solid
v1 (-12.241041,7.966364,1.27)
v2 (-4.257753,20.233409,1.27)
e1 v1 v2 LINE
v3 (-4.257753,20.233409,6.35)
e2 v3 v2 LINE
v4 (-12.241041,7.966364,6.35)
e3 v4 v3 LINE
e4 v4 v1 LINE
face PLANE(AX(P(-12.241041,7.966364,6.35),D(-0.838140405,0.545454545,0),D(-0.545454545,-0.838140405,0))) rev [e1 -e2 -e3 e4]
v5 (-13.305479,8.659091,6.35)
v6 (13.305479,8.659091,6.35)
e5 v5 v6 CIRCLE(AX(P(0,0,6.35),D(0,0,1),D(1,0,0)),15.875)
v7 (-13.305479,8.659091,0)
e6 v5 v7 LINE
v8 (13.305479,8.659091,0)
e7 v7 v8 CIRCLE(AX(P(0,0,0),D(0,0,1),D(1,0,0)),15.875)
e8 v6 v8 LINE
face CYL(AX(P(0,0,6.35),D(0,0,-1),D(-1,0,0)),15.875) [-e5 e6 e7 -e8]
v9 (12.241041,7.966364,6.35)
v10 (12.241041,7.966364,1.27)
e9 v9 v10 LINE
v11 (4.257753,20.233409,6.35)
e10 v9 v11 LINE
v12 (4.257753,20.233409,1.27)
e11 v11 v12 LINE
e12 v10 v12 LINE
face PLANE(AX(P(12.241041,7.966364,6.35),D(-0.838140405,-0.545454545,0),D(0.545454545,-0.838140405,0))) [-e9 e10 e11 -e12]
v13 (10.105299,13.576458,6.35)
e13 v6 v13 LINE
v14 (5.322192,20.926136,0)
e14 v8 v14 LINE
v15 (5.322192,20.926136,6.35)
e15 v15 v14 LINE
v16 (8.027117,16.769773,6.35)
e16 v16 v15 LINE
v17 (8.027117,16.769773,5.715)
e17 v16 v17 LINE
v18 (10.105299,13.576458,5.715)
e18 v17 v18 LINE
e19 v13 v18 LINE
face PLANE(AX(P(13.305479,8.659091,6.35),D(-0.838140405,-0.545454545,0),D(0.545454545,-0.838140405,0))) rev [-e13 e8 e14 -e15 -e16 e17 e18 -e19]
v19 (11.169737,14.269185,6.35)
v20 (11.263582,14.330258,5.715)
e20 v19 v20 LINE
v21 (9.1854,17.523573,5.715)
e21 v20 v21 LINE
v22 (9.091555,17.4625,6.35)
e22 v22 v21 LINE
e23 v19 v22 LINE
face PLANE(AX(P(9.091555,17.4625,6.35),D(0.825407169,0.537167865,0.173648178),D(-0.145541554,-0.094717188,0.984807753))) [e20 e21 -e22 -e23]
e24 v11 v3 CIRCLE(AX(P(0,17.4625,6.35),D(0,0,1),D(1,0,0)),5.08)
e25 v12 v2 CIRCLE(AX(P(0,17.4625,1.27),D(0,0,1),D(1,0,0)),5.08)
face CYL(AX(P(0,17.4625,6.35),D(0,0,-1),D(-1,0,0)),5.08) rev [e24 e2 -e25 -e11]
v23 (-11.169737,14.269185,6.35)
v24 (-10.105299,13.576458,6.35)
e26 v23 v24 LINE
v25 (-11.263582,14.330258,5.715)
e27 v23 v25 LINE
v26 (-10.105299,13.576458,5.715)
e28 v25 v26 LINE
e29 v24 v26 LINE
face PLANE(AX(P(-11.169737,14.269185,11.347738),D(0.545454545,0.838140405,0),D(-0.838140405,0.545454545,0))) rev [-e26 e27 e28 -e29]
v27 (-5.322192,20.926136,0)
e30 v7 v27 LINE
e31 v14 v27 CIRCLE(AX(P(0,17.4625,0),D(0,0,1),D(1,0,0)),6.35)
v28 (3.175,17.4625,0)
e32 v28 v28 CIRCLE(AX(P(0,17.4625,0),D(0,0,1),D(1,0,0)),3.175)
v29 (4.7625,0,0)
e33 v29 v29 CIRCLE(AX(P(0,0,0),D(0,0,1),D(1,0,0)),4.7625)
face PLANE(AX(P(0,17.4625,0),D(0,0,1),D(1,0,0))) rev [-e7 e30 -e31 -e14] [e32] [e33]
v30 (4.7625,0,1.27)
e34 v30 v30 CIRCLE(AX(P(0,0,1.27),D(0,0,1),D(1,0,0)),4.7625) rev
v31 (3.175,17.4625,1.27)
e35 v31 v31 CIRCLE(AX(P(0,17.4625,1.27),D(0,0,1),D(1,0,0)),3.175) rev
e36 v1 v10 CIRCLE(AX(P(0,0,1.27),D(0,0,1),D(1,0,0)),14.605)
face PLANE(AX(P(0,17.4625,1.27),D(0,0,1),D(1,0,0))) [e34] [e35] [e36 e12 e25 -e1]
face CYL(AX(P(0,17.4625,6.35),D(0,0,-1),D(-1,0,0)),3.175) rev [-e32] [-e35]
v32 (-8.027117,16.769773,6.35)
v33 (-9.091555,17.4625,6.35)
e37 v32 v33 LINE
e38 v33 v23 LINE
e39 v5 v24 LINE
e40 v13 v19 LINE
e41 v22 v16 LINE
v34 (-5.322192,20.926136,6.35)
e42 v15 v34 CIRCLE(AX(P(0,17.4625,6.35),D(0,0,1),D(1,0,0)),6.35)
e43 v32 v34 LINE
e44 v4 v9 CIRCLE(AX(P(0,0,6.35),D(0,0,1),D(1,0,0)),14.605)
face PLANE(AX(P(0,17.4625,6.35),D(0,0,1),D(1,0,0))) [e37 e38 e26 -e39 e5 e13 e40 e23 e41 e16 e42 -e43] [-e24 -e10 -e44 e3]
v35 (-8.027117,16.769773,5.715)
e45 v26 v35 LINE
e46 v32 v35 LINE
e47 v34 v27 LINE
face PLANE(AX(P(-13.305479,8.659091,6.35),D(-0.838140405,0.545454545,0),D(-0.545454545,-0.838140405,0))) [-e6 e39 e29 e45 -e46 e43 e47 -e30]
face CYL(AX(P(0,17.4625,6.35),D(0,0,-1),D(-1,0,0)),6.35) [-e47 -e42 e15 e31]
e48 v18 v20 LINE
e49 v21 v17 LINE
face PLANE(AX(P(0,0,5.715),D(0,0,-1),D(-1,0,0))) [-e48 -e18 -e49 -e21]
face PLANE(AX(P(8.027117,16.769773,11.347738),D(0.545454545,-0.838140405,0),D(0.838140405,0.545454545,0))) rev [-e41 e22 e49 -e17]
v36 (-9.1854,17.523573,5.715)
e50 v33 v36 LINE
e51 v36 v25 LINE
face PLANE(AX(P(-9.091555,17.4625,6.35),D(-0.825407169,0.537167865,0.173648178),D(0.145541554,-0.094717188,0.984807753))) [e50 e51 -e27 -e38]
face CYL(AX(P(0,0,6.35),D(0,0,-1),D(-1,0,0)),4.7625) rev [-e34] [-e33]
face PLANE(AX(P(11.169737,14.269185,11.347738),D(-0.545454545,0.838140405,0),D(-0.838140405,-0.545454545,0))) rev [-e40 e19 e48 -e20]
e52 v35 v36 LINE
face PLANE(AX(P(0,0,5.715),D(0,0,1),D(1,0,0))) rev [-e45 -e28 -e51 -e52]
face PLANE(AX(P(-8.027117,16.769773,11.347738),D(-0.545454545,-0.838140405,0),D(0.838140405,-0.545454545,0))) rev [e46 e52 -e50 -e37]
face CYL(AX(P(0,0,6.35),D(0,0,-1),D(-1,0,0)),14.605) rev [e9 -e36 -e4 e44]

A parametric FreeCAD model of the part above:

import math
import FreeCAD as App
import Part
import Sketcher

V = App.Vector
Q = App.Units.Quantity


def faces_at(feature, points):
    """Names of the faces that lie closest to the given points."""
    faces = feature.Shape.Faces
    near = lambda p: min(range(len(faces)), key=lambda i: faces[i].distToShape(Part.Vertex(*p))[0])
    return sorted({f"Face{near(p) + 1}" for p in points})


def add_polygon(sketch, points):
    """Adds a closed chain of lines whose ends are joined by coincident constraints."""
    first, n = sketch.GeometryCount, len(points)
    for a, b in zip(points, points[1:] + points[:1]):
        sketch.addGeometry(Part.LineSegment(App.Vector(*a, 0), App.Vector(*b, 0)), False)
    for i in range(n):
        sketch.addConstraint(Sketcher.Constraint("Coincident", first + i, 2, first + (i + 1) % n, 1))

doc = App.newDocument("Part")
params = doc.addObject("Spreadsheet::Sheet", "Params")
for row, (alias, value) in enumerate([
    ("sketch1_radius", "0.25 in"),
    ("sketch1_radius2", "0.625 in"),
    ("pad1_length", "0.25 in"),
    ("thickness_wall", "0.05 in"),
    ("sketch2_diameter", "0.25 in"),
    ("sketch2_diameter2", "0.375 in"),
    ("sketch3_length", "0.05 in"),
    ("sketch3_length2", "0.15 in"),
    ("pad2_length", "0.025 in"),
    ("draft_angle", "10 deg"),
], start=1):
    params.set(f"A{row}", alias)
    params.set(f"B{row}", "=" + value)
    params.setAlias(f"B{row}", alias)

body = doc.addObject("PartDesign::Body", "Body")

sketch1 = body.newObject("Sketcher::SketchObject", "Sketch")
sketch1.AttachmentSupport = (doc.getObject("XY_Plane"), [""])
sketch1.MapMode = "FlatFace"
sketch1.addGeometry(Part.LineSegment(V(13, 9, 0), V(5, 21, 0)), False)
sketch1.addGeometry(Part.ArcOfCircle(Part.Circle(V(0, 17, 0), V(0, 0, 1), 6), math.radians(33), math.radians(147)), False)
sketch1.addGeometry(Part.LineSegment(V(-5, 21, 0), V(-13, 9, 0)), False)
sketch1.addGeometry(Part.ArcOfCircle(Part.Circle(V(0, 0, 0), V(0, 0, 1), 16), math.radians(147), math.radians(393)), False)
sketch1.addConstraint(Sketcher.Constraint("Tangent", 0, 2, 1, 1))
sketch1.addConstraint(Sketcher.Constraint("Tangent", 1, 2, 2, 1))
sketch1.addConstraint(Sketcher.Constraint("Tangent", 2, 2, 3, 1))
sketch1.addConstraint(Sketcher.Constraint("Tangent", 3, 2, 0, 1))
sketch1.addConstraint(Sketcher.Constraint("Coincident", 3, 3, -1, 1))
sketch1.addConstraint(Sketcher.Constraint("PointOnObject", 1, 3, -2))
sketch1.addConstraint(Sketcher.Constraint("Radius", 1, Q("0.25 in")))
sketch1.addConstraint(Sketcher.Constraint("Radius", 3, Q("0.625 in")))
sketch1.addConstraint(Sketcher.Constraint("DistanceY", -1, 1, 1, 3, Q("0.6875 in")))
sketch1.setExpression("Constraints[6]", "Params.sketch1_radius")
sketch1.setExpression("Constraints[7]", "Params.sketch1_radius2")
pad1 = body.newObject("PartDesign::Pad", "Pad")
pad1.Profile = sketch1
pad1.setExpression("Length", "Params.pad1_length")
doc.recompute()

thickness = body.newObject("PartDesign::Thickness", "Thickness")
thickness.Base = (pad1, faces_at(pad1, [(0, 3.969, 6.35)]))
thickness.setExpression("Value", "Params.thickness_wall")
thickness.Reversed = True
thickness.Join = "Intersection"

sketch2 = body.newObject("Sketcher::SketchObject", "Sketch001")
sketch2.AttachmentSupport = (doc.getObject("XY_Plane"), [""])
sketch2.MapMode = "FlatFace"
sketch2.addGeometry(Part.Circle(V(0, 0, 0), V(0, 0, 1), 4.8), False)
sketch2.addGeometry(Part.Circle(V(0, 17.5, 0), V(0, 0, 1), 3.2), False)
sketch2.addConstraint(Sketcher.Constraint("Coincident", 0, 3, -1, 1))
sketch2.addConstraint(Sketcher.Constraint("PointOnObject", 1, 3, -2))
sketch2.addConstraint(Sketcher.Constraint("Diameter", 1, Q("0.25 in")))
sketch2.addConstraint(Sketcher.Constraint("Diameter", 0, Q("0.375 in")))
sketch2.addConstraint(Sketcher.Constraint("DistanceY", -1, 1, 1, 3, Q("0.6875 in")))
sketch2.setExpression("Constraints[2]", "Params.sketch2_diameter")
sketch2.setExpression("Constraints[3]", "Params.sketch2_diameter2")
pocket1 = body.newObject("PartDesign::Pocket", "Pocket")
pocket1.Profile = sketch2
pocket1.Type = "ThroughAll"
pocket1.Reversed = True

sketch3 = body.newObject("Sketcher::SketchObject", "Sketch002")
sketch3.AttachmentSupport = (doc.getObject("XY_Plane"), [""])
sketch3.MapMode = "FlatFace"
sketch3.AttachmentOffset = App.Placement(V(0, 0, 0.225 * 25.4), App.Rotation())
add_polygon(sketch3, [(9.1, 17.5), (8, 16.8), (10.1, 13.6), (11.2, 14.3)])
add_polygon(sketch3, [(-11.2, 14.3), (-10.1, 13.6), (-8, 16.8), (-9.1, 17.5)])
sketch3.addConstraint(Sketcher.Constraint("Symmetric", 1, 2, 4, 2, -2))
sketch3.addConstraint(Sketcher.Constraint("Symmetric", 0, 2, 5, 2, -2))
sketch3.addConstraint(Sketcher.Constraint("Symmetric", 3, 2, 6, 2, -2))
sketch3.addConstraint(Sketcher.Constraint("Symmetric", 2, 2, 7, 2, -2))
sketch3.addConstraint(Sketcher.Constraint("Perpendicular", 0, 1))
sketch3.addConstraint(Sketcher.Constraint("Perpendicular", 1, 2))
sketch3.addConstraint(Sketcher.Constraint("Perpendicular", 2, 3))
sketch3.addConstraint(Sketcher.Constraint("Distance", 0, Q("0.05 in")))
sketch3.addConstraint(Sketcher.Constraint("Distance", 1, Q("0.15 in")))
sketch3.addConstraint(Sketcher.Constraint("DistanceY", -1, 1, 3, 2, Q("0.6875 in")))
sketch3.addConstraint(Sketcher.Constraint("DistanceX", 4, 2, 2, 2, Q("0.8375999 in")))
sketch3.addConstraint(Sketcher.Constraint("DistanceX", -1, 1, 1, 2, Q("10.105299 mm")))
sketch3.setExpression("Constraints[15]", "Params.sketch3_length")
sketch3.setExpression("Constraints[16]", "Params.sketch3_length2")
pad2 = body.newObject("PartDesign::Pad", "Pad001")
pad2.Profile = sketch3
pad2.setExpression("Length", "Params.pad2_length")
doc.recompute()

datumplane = body.newObject("PartDesign::Plane", "DatumPlane")
datumplane.AttachmentSupport = (doc.getObject("XY_Plane"), [""])
datumplane.MapMode = "FlatFace"
datumplane.AttachmentOffset = App.Placement(V(0, 0, 0.25 * 25.4), App.Rotation())
draft = body.newObject("PartDesign::Draft", "Draft")
draft.Base = (pad2, faces_at(pad2, [(10.131, 15.866, 6.032), (-10.131, 15.866, 6.032)]))
draft.NeutralPlane = (datumplane, [""])
draft.setExpression("Angle", "Params.draft_angle")
draft.Reversed = False

doc.recompute()
